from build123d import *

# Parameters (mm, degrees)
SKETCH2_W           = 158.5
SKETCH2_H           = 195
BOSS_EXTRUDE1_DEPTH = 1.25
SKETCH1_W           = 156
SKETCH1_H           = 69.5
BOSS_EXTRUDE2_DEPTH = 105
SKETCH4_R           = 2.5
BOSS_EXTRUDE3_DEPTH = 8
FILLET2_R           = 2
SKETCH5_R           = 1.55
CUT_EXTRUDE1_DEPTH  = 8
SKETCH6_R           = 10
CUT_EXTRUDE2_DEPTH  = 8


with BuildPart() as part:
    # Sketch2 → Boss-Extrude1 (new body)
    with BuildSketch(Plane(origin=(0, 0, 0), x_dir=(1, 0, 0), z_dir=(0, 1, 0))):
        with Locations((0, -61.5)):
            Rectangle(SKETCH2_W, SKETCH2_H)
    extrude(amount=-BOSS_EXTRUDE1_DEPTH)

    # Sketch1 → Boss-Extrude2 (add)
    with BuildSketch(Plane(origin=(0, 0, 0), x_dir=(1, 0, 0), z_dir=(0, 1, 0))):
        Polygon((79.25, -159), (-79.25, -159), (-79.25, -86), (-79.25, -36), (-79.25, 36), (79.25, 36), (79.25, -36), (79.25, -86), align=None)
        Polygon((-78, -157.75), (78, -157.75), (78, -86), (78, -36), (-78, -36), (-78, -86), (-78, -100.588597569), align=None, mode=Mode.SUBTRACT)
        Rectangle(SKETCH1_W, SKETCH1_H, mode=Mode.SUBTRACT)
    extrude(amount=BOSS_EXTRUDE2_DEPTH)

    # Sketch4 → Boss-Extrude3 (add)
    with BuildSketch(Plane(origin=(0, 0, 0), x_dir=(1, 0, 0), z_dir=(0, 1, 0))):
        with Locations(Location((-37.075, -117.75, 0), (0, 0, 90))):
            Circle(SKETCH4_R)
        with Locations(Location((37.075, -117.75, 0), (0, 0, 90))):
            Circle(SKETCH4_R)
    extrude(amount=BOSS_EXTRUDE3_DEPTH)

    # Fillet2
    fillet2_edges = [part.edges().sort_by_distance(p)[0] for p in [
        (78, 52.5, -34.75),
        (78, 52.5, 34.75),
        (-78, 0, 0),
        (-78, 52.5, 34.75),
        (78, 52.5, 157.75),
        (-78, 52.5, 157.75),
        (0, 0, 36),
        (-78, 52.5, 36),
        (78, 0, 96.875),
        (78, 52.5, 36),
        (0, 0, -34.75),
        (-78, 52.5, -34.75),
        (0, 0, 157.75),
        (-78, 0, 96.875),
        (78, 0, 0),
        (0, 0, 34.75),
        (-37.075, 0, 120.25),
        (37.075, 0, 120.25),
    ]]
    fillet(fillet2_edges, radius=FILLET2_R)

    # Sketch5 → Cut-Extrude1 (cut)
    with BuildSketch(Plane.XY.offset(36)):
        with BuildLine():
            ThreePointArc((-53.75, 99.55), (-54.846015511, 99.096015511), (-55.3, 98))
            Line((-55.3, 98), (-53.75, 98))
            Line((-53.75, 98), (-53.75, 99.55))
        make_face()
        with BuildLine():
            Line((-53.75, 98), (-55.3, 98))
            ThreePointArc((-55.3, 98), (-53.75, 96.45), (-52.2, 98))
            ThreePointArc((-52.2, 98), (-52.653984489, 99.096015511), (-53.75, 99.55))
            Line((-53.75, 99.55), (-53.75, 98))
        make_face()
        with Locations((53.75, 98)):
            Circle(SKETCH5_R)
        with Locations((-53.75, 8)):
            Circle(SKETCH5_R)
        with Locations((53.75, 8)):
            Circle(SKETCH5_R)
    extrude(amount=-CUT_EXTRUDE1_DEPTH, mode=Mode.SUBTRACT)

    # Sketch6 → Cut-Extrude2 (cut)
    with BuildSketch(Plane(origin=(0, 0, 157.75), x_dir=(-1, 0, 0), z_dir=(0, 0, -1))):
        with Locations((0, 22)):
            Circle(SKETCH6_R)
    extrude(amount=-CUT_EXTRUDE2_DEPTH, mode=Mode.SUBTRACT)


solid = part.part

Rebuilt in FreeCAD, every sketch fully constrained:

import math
import FreeCAD as App
import Part
import Sketcher

V = App.Vector


def edges_at(feature, points):
    """Names of the edges that pass closest to the given points."""
    edges = feature.Shape.Edges
    near = lambda p: min(range(len(edges)), key=lambda i: edges[i].distToShape(Part.Vertex(*p))[0])
    return sorted({f"Edge{near(p) + 1}" for p in points})

doc = App.newDocument("Part")
params = doc.addObject("Spreadsheet::Sheet", "Params")
for row, (alias, value) in enumerate([
    ("sketch1_height", "195 mm"),
    ("sketch1_width", "158.5 mm"),
    ("pad1_length", "1.25 mm"),
    ("sketch2_width", "156 mm"),
    ("sketch2_height", "195 mm"),
    ("sketch2_width2", "158.5 mm"),
    ("sketch2_height2", "69.5 mm"),
    ("pad2_length", "105 mm"),
    ("sketch3_diameter", "5 mm"),
    ("pad3_length", "8 mm"),
    ("fillet_radius", "2 mm"),
    ("sketch4_diameter", "3.1 mm"),
    ("pocket1_length", "8 mm"),
    ("sketch5_diameter", "20 mm"),
    ("pocket2_length", "8 mm"),
], start=1):
    params.set(f"A{row}", alias)
    params.set(f"B{row}", "=" + value)
    params.setAlias(f"B{row}", alias)

body = doc.addObject("PartDesign::Body", "Body")

# Sketch on XZ plane
sketch1 = body.newObject("Sketcher::SketchObject", "Sketch")
sketch1.AttachmentSupport = (doc.getObject("XZ_Plane"), [""])
sketch1.MapMode = "FlatFace"
sketch1.addGeometry([
    Part.LineSegment(V(-79, -36, 0), V(-79, 159, 0)),
    Part.LineSegment(V(-79, 159, 0), V(79, 159, 0)),
    Part.LineSegment(V(79, 159, 0), V(79, -36, 0)),
    Part.LineSegment(V(79, -36, 0), V(-79, -36, 0)),
], False)
sketch1.addConstraint([
    Sketcher.Constraint("Coincident", 0, 2, 1, 1),
    Sketcher.Constraint("Coincident", 1, 2, 2, 1),
    Sketcher.Constraint("Coincident", 2, 2, 3, 1),
    Sketcher.Constraint("Coincident", 3, 2, 0, 1),
    Sketcher.Constraint("Vertical", 0),
    Sketcher.Constraint("Horizontal", 1),
    Sketcher.Constraint("Vertical", 2),
    Sketcher.Constraint("Horizontal", 3),
    Sketcher.Constraint("DistanceY", 0, 1, 0, 2, 195.0),
    Sketcher.Constraint("DistanceX", 1, 1, 1, 2, 158.5),
    Sketcher.Constraint("DistanceY", -1, 1, 0, 2, 159.0),
    Sketcher.Constraint("DistanceX", 0, 2, -1, 1, 79.25),
])
sketch1.setExpression("Constraints[8]", "Params.sketch1_height")
sketch1.setExpression("Constraints[9]", "Params.sketch1_width")
pad1 = body.newObject("PartDesign::Pad", "Pad")
pad1.Profile = sketch1
pad1.setExpression("Length", "Params.pad1_length")

# Sketch on XZ plane
sketch2 = body.newObject("Sketcher::SketchObject", "Sketch001")
sketch2.AttachmentSupport = (doc.getObject("XZ_Plane"), [""])
sketch2.MapMode = "FlatFace"
sketch2.addGeometry([
    Part.LineSegment(V(-79, 159, 0), V(79, 159, 0)),  # 0
    Part.LineSegment(V(79, 159, 0), V(79, -36, 0)),  # 1
    Part.LineSegment(V(79, -36, 0), V(-79, -36, 0)),  # 2
    Part.LineSegment(V(-79, -36, 0), V(-79, 159, 0)),  # 3
    Part.LineSegment(V(-78, 158, 0), V(-78, 36, 0)),  # 4
    Part.LineSegment(V(-78, 36, 0), V(78, 36, 0)),  # 5
    Part.LineSegment(V(78, 36, 0), V(78, 158, 0)),  # 6
    Part.LineSegment(V(78, 158, 0), V(-78, 158, 0)),  # 7
    Part.LineSegment(V(-78, 35, 0), V(-78, -35, 0)),  # 8
    Part.LineSegment(V(-78, -35, 0), V(78, -35, 0)),  # 9
    Part.LineSegment(V(78, -35, 0), V(78, 35, 0)),  # 10
    Part.LineSegment(V(78, 35, 0), V(-78, 35, 0)),  # 11
], False)
sketch2.addConstraint([
    Sketcher.Constraint("Coincident", 0, 2, 1, 1),
    Sketcher.Constraint("Coincident", 1, 2, 2, 1),
    Sketcher.Constraint("Coincident", 2, 2, 3, 1),
    Sketcher.Constraint("Coincident", 3, 2, 0, 1),
    Sketcher.Constraint("Coincident", 4, 2, 5, 1),
    Sketcher.Constraint("Coincident", 5, 2, 6, 1),
    Sketcher.Constraint("Coincident", 6, 2, 7, 1),
    Sketcher.Constraint("Coincident", 7, 2, 4, 1),
    Sketcher.Constraint("Coincident", 8, 2, 9, 1),
    Sketcher.Constraint("Coincident", 9, 2, 10, 1),
    Sketcher.Constraint("Coincident", 10, 2, 11, 1),
    Sketcher.Constraint("Coincident", 11, 2, 8, 1),
    Sketcher.Constraint("Horizontal", 0),
    Sketcher.Constraint("Vertical", 1),
    Sketcher.Constraint("Horizontal", 2),
    Sketcher.Constraint("Vertical", 3),
    Sketcher.Constraint("Vertical", 4),
    Sketcher.Constraint("Horizontal", 5),
    Sketcher.Constraint("Vertical", 6),
    Sketcher.Constraint("Horizontal", 7),
    Sketcher.Constraint("Vertical", 8),
    Sketcher.Constraint("Horizontal", 9),
    Sketcher.Constraint("Vertical", 10),
    Sketcher.Constraint("Horizontal", 11),
    Sketcher.Constraint("Symmetric", 8, 2, 10, 2, -1, 1),
    Sketcher.Constraint("Vertical", 7, 2, 8, 2),
    Sketcher.Constraint("Vertical", 6, 2, 9, 2),
    Sketcher.Constraint("DistanceX", 5, 1, 5, 2, 156.0),
    Sketcher.Constraint("DistanceY", 1, 2, 1, 1, 195.0),
    Sketcher.Constraint("DistanceX", 0, 1, 0, 2, 158.5),
    Sketcher.Constraint("DistanceY", 8, 2, 8, 1, 69.5),
    Sketcher.Constraint("DistanceY", -1, 1, 0, 2, 159.0),
    Sketcher.Constraint("DistanceY", -1, 1, 4, 2, 36.0),
    Sketcher.Constraint("DistanceY", 10, 2, 6, 2, 123.0),
    Sketcher.Constraint("DistanceX", -1, 1, 0, 2, 79.25),
])
sketch2.setExpression("Constraints[27]", "Params.sketch2_width")
sketch2.setExpression("Constraints[28]", "Params.sketch2_height")
sketch2.setExpression("Constraints[29]", "Params.sketch2_width2")
sketch2.setExpression("Constraints[30]", "Params.sketch2_height2")
pad2 = body.newObject("PartDesign::Pad", "Pad001")
pad2.Profile = sketch2
pad2.setExpression("Length", "Params.pad2_length")
pad2.Reversed = True

# Sketch on XZ plane
sketch3 = body.newObject("Sketcher::SketchObject", "Sketch002")
sketch3.AttachmentSupport = (doc.getObject("XZ_Plane"), [""])
sketch3.MapMode = "FlatFace"
sketch3.addGeometry([
    Part.Circle(V(-37.1, 117.8, 0), V(0, 0, 1), 2.5),
    Part.Circle(V(37.1, 117.8, 0), V(0, 0, 1), 2.5),
], False)
sketch3.addConstraint([
    Sketcher.Constraint("Equal", 0, 1),
    Sketcher.Constraint("Symmetric", 0, 3, 1, 3, -2),
    Sketcher.Constraint("Diameter", 0, 5.0),
    Sketcher.Constraint("DistanceY", -1, 1, 0, 3, 117.75),
    Sketcher.Constraint("DistanceX", 0, 3, 1, 3, 74.15),
])
sketch3.setExpression("Constraints[2]", "Params.sketch3_diameter")
pad3 = body.newObject("PartDesign::Pad", "Pad002")
pad3.Profile = sketch3
pad3.setExpression("Length", "Params.pad3_length")
pad3.Reversed = True
doc.recompute()

fillet = body.newObject("PartDesign::Fillet", "Fillet")
fillet.Base = (pad3, edges_at(pad3, [
    (78, 52.5, -34.75),
    (78, 52.5, 34.75),
    (-78, 0, 0),
    (-78, 52.5, 34.75),
    (78, 52.5, 157.75),
    (-78, 52.5, 157.75),
    (0, 0, 36),
    (-78, 52.5, 36),
    (78, 0, 96.875),
    (78, 52.5, 36),
    (0, 0, -34.75),
    (-78, 52.5, -34.75),
    (0, 0, 157.75),
    (-78, 0, 96.875),
    (78, 0, 0),
    (0, 0, 34.75),
    (-37.075, 0, 120.25),
    (37.075, 0, 120.25),
]))
fillet.setExpression("Radius", "Params.fillet_radius")

# Sketch on XY plane
sketch4 = body.newObject("Sketcher::SketchObject", "Sketch003")
sketch4.AttachmentSupport = (doc.getObject("XY_Plane"), [""])
sketch4.MapMode = "FlatFace"
sketch4.AttachmentOffset = App.Placement(V(0, 0, 36), App.Rotation())
sketch4.addGeometry([
    Part.ArcOfCircle(Part.Circle(V(-53.8, 98, 0), V(0, 0, 1), 1.5), math.radians(90), math.radians(180)),  # 0
    Part.ArcOfCircle(Part.Circle(V(-53.8, 98, 0), V(0, 0, 1), 1.6), math.radians(180), math.radians(360)),  # 1
    Part.ArcOfCircle(Part.Circle(V(-53.7, 98, 0), V(0, 0, 1), 1.5), math.radians(0), math.radians(90)),  # 2
    Part.Circle(V(53.8, 98, 0), V(0, 0, 1), 1.6),  # 3
    Part.Circle(V(-53.8, 8, 0), V(0, 0, 1), 1.6),  # 4
    Part.Circle(V(53.8, 8, 0), V(0, 0, 1), 1.6),  # 5
], False)
sketch4.addConstraint([
    Sketcher.Constraint("Tangent", 0, 2, 1, 1),
    Sketcher.Constraint("Tangent", 1, 2, 2, 1),
    Sketcher.Constraint("Tangent", 2, 2, 0, 1),
    Sketcher.Constraint("Equal", 2, 3),
    Sketcher.Constraint("Equal", 3, 4),
    Sketcher.Constraint("Equal", 4, 5),
    Sketcher.Constraint("Symmetric", 0, 3, 3, 3, -2),
    Sketcher.Constraint("Symmetric", 4, 3, 5, 3, -2),
    Sketcher.Constraint("Horizontal", 3, 3, 0, 2),
    Sketcher.Constraint("Horizontal", 0, 2, 1, 2),
    Sketcher.Constraint("Vertical", 2, 3, 4, 3),
    Sketcher.Constraint("Vertical", 4, 3, 2, 2),
    Sketcher.Constraint("Diameter", 3, 3.1),
    Sketcher.Constraint("DistanceY", -1, 1, 0, 3, 98.0),
    Sketcher.Constraint("DistanceY", -1, 1, 4, 3, 8.0),
    Sketcher.Constraint("DistanceX", 0, 2, -1, 1, 55.3),
])
sketch4.setExpression("Constraints[12]", "Params.sketch4_diameter")
pocket1 = body.newObject("PartDesign::Pocket", "Pocket")
pocket1.Profile = sketch4
pocket1.setExpression("Length", "Params.pocket1_length")

# Sketch on XY plane
sketch5 = body.newObject("Sketcher::SketchObject", "Sketch004")
sketch5.AttachmentSupport = (doc.getObject("XY_Plane"), [""])
sketch5.MapMode = "FlatFace"
sketch5.AttachmentOffset = App.Placement(V(0, 0, 157.75), App.Rotation())
sketch5.addGeometry(Part.Circle(V(0, 22, 0), V(0, 0, 1), 10), False)
sketch5.addConstraint([
    Sketcher.Constraint("PointOnObject", 0, 3, -2),
    Sketcher.Constraint("Diameter", 0, 20.0),
    Sketcher.Constraint("DistanceY", -1, 1, 0, 3, 22.0),
])
sketch5.setExpression("Constraints[1]", "Params.sketch5_diameter")
pocket2 = body.newObject("PartDesign::Pocket", "Pocket001")
pocket2.Profile = sketch5
pocket2.setExpression("Length", "Params.pocket2_length")
pocket2.Reversed = True

doc.recompute()
